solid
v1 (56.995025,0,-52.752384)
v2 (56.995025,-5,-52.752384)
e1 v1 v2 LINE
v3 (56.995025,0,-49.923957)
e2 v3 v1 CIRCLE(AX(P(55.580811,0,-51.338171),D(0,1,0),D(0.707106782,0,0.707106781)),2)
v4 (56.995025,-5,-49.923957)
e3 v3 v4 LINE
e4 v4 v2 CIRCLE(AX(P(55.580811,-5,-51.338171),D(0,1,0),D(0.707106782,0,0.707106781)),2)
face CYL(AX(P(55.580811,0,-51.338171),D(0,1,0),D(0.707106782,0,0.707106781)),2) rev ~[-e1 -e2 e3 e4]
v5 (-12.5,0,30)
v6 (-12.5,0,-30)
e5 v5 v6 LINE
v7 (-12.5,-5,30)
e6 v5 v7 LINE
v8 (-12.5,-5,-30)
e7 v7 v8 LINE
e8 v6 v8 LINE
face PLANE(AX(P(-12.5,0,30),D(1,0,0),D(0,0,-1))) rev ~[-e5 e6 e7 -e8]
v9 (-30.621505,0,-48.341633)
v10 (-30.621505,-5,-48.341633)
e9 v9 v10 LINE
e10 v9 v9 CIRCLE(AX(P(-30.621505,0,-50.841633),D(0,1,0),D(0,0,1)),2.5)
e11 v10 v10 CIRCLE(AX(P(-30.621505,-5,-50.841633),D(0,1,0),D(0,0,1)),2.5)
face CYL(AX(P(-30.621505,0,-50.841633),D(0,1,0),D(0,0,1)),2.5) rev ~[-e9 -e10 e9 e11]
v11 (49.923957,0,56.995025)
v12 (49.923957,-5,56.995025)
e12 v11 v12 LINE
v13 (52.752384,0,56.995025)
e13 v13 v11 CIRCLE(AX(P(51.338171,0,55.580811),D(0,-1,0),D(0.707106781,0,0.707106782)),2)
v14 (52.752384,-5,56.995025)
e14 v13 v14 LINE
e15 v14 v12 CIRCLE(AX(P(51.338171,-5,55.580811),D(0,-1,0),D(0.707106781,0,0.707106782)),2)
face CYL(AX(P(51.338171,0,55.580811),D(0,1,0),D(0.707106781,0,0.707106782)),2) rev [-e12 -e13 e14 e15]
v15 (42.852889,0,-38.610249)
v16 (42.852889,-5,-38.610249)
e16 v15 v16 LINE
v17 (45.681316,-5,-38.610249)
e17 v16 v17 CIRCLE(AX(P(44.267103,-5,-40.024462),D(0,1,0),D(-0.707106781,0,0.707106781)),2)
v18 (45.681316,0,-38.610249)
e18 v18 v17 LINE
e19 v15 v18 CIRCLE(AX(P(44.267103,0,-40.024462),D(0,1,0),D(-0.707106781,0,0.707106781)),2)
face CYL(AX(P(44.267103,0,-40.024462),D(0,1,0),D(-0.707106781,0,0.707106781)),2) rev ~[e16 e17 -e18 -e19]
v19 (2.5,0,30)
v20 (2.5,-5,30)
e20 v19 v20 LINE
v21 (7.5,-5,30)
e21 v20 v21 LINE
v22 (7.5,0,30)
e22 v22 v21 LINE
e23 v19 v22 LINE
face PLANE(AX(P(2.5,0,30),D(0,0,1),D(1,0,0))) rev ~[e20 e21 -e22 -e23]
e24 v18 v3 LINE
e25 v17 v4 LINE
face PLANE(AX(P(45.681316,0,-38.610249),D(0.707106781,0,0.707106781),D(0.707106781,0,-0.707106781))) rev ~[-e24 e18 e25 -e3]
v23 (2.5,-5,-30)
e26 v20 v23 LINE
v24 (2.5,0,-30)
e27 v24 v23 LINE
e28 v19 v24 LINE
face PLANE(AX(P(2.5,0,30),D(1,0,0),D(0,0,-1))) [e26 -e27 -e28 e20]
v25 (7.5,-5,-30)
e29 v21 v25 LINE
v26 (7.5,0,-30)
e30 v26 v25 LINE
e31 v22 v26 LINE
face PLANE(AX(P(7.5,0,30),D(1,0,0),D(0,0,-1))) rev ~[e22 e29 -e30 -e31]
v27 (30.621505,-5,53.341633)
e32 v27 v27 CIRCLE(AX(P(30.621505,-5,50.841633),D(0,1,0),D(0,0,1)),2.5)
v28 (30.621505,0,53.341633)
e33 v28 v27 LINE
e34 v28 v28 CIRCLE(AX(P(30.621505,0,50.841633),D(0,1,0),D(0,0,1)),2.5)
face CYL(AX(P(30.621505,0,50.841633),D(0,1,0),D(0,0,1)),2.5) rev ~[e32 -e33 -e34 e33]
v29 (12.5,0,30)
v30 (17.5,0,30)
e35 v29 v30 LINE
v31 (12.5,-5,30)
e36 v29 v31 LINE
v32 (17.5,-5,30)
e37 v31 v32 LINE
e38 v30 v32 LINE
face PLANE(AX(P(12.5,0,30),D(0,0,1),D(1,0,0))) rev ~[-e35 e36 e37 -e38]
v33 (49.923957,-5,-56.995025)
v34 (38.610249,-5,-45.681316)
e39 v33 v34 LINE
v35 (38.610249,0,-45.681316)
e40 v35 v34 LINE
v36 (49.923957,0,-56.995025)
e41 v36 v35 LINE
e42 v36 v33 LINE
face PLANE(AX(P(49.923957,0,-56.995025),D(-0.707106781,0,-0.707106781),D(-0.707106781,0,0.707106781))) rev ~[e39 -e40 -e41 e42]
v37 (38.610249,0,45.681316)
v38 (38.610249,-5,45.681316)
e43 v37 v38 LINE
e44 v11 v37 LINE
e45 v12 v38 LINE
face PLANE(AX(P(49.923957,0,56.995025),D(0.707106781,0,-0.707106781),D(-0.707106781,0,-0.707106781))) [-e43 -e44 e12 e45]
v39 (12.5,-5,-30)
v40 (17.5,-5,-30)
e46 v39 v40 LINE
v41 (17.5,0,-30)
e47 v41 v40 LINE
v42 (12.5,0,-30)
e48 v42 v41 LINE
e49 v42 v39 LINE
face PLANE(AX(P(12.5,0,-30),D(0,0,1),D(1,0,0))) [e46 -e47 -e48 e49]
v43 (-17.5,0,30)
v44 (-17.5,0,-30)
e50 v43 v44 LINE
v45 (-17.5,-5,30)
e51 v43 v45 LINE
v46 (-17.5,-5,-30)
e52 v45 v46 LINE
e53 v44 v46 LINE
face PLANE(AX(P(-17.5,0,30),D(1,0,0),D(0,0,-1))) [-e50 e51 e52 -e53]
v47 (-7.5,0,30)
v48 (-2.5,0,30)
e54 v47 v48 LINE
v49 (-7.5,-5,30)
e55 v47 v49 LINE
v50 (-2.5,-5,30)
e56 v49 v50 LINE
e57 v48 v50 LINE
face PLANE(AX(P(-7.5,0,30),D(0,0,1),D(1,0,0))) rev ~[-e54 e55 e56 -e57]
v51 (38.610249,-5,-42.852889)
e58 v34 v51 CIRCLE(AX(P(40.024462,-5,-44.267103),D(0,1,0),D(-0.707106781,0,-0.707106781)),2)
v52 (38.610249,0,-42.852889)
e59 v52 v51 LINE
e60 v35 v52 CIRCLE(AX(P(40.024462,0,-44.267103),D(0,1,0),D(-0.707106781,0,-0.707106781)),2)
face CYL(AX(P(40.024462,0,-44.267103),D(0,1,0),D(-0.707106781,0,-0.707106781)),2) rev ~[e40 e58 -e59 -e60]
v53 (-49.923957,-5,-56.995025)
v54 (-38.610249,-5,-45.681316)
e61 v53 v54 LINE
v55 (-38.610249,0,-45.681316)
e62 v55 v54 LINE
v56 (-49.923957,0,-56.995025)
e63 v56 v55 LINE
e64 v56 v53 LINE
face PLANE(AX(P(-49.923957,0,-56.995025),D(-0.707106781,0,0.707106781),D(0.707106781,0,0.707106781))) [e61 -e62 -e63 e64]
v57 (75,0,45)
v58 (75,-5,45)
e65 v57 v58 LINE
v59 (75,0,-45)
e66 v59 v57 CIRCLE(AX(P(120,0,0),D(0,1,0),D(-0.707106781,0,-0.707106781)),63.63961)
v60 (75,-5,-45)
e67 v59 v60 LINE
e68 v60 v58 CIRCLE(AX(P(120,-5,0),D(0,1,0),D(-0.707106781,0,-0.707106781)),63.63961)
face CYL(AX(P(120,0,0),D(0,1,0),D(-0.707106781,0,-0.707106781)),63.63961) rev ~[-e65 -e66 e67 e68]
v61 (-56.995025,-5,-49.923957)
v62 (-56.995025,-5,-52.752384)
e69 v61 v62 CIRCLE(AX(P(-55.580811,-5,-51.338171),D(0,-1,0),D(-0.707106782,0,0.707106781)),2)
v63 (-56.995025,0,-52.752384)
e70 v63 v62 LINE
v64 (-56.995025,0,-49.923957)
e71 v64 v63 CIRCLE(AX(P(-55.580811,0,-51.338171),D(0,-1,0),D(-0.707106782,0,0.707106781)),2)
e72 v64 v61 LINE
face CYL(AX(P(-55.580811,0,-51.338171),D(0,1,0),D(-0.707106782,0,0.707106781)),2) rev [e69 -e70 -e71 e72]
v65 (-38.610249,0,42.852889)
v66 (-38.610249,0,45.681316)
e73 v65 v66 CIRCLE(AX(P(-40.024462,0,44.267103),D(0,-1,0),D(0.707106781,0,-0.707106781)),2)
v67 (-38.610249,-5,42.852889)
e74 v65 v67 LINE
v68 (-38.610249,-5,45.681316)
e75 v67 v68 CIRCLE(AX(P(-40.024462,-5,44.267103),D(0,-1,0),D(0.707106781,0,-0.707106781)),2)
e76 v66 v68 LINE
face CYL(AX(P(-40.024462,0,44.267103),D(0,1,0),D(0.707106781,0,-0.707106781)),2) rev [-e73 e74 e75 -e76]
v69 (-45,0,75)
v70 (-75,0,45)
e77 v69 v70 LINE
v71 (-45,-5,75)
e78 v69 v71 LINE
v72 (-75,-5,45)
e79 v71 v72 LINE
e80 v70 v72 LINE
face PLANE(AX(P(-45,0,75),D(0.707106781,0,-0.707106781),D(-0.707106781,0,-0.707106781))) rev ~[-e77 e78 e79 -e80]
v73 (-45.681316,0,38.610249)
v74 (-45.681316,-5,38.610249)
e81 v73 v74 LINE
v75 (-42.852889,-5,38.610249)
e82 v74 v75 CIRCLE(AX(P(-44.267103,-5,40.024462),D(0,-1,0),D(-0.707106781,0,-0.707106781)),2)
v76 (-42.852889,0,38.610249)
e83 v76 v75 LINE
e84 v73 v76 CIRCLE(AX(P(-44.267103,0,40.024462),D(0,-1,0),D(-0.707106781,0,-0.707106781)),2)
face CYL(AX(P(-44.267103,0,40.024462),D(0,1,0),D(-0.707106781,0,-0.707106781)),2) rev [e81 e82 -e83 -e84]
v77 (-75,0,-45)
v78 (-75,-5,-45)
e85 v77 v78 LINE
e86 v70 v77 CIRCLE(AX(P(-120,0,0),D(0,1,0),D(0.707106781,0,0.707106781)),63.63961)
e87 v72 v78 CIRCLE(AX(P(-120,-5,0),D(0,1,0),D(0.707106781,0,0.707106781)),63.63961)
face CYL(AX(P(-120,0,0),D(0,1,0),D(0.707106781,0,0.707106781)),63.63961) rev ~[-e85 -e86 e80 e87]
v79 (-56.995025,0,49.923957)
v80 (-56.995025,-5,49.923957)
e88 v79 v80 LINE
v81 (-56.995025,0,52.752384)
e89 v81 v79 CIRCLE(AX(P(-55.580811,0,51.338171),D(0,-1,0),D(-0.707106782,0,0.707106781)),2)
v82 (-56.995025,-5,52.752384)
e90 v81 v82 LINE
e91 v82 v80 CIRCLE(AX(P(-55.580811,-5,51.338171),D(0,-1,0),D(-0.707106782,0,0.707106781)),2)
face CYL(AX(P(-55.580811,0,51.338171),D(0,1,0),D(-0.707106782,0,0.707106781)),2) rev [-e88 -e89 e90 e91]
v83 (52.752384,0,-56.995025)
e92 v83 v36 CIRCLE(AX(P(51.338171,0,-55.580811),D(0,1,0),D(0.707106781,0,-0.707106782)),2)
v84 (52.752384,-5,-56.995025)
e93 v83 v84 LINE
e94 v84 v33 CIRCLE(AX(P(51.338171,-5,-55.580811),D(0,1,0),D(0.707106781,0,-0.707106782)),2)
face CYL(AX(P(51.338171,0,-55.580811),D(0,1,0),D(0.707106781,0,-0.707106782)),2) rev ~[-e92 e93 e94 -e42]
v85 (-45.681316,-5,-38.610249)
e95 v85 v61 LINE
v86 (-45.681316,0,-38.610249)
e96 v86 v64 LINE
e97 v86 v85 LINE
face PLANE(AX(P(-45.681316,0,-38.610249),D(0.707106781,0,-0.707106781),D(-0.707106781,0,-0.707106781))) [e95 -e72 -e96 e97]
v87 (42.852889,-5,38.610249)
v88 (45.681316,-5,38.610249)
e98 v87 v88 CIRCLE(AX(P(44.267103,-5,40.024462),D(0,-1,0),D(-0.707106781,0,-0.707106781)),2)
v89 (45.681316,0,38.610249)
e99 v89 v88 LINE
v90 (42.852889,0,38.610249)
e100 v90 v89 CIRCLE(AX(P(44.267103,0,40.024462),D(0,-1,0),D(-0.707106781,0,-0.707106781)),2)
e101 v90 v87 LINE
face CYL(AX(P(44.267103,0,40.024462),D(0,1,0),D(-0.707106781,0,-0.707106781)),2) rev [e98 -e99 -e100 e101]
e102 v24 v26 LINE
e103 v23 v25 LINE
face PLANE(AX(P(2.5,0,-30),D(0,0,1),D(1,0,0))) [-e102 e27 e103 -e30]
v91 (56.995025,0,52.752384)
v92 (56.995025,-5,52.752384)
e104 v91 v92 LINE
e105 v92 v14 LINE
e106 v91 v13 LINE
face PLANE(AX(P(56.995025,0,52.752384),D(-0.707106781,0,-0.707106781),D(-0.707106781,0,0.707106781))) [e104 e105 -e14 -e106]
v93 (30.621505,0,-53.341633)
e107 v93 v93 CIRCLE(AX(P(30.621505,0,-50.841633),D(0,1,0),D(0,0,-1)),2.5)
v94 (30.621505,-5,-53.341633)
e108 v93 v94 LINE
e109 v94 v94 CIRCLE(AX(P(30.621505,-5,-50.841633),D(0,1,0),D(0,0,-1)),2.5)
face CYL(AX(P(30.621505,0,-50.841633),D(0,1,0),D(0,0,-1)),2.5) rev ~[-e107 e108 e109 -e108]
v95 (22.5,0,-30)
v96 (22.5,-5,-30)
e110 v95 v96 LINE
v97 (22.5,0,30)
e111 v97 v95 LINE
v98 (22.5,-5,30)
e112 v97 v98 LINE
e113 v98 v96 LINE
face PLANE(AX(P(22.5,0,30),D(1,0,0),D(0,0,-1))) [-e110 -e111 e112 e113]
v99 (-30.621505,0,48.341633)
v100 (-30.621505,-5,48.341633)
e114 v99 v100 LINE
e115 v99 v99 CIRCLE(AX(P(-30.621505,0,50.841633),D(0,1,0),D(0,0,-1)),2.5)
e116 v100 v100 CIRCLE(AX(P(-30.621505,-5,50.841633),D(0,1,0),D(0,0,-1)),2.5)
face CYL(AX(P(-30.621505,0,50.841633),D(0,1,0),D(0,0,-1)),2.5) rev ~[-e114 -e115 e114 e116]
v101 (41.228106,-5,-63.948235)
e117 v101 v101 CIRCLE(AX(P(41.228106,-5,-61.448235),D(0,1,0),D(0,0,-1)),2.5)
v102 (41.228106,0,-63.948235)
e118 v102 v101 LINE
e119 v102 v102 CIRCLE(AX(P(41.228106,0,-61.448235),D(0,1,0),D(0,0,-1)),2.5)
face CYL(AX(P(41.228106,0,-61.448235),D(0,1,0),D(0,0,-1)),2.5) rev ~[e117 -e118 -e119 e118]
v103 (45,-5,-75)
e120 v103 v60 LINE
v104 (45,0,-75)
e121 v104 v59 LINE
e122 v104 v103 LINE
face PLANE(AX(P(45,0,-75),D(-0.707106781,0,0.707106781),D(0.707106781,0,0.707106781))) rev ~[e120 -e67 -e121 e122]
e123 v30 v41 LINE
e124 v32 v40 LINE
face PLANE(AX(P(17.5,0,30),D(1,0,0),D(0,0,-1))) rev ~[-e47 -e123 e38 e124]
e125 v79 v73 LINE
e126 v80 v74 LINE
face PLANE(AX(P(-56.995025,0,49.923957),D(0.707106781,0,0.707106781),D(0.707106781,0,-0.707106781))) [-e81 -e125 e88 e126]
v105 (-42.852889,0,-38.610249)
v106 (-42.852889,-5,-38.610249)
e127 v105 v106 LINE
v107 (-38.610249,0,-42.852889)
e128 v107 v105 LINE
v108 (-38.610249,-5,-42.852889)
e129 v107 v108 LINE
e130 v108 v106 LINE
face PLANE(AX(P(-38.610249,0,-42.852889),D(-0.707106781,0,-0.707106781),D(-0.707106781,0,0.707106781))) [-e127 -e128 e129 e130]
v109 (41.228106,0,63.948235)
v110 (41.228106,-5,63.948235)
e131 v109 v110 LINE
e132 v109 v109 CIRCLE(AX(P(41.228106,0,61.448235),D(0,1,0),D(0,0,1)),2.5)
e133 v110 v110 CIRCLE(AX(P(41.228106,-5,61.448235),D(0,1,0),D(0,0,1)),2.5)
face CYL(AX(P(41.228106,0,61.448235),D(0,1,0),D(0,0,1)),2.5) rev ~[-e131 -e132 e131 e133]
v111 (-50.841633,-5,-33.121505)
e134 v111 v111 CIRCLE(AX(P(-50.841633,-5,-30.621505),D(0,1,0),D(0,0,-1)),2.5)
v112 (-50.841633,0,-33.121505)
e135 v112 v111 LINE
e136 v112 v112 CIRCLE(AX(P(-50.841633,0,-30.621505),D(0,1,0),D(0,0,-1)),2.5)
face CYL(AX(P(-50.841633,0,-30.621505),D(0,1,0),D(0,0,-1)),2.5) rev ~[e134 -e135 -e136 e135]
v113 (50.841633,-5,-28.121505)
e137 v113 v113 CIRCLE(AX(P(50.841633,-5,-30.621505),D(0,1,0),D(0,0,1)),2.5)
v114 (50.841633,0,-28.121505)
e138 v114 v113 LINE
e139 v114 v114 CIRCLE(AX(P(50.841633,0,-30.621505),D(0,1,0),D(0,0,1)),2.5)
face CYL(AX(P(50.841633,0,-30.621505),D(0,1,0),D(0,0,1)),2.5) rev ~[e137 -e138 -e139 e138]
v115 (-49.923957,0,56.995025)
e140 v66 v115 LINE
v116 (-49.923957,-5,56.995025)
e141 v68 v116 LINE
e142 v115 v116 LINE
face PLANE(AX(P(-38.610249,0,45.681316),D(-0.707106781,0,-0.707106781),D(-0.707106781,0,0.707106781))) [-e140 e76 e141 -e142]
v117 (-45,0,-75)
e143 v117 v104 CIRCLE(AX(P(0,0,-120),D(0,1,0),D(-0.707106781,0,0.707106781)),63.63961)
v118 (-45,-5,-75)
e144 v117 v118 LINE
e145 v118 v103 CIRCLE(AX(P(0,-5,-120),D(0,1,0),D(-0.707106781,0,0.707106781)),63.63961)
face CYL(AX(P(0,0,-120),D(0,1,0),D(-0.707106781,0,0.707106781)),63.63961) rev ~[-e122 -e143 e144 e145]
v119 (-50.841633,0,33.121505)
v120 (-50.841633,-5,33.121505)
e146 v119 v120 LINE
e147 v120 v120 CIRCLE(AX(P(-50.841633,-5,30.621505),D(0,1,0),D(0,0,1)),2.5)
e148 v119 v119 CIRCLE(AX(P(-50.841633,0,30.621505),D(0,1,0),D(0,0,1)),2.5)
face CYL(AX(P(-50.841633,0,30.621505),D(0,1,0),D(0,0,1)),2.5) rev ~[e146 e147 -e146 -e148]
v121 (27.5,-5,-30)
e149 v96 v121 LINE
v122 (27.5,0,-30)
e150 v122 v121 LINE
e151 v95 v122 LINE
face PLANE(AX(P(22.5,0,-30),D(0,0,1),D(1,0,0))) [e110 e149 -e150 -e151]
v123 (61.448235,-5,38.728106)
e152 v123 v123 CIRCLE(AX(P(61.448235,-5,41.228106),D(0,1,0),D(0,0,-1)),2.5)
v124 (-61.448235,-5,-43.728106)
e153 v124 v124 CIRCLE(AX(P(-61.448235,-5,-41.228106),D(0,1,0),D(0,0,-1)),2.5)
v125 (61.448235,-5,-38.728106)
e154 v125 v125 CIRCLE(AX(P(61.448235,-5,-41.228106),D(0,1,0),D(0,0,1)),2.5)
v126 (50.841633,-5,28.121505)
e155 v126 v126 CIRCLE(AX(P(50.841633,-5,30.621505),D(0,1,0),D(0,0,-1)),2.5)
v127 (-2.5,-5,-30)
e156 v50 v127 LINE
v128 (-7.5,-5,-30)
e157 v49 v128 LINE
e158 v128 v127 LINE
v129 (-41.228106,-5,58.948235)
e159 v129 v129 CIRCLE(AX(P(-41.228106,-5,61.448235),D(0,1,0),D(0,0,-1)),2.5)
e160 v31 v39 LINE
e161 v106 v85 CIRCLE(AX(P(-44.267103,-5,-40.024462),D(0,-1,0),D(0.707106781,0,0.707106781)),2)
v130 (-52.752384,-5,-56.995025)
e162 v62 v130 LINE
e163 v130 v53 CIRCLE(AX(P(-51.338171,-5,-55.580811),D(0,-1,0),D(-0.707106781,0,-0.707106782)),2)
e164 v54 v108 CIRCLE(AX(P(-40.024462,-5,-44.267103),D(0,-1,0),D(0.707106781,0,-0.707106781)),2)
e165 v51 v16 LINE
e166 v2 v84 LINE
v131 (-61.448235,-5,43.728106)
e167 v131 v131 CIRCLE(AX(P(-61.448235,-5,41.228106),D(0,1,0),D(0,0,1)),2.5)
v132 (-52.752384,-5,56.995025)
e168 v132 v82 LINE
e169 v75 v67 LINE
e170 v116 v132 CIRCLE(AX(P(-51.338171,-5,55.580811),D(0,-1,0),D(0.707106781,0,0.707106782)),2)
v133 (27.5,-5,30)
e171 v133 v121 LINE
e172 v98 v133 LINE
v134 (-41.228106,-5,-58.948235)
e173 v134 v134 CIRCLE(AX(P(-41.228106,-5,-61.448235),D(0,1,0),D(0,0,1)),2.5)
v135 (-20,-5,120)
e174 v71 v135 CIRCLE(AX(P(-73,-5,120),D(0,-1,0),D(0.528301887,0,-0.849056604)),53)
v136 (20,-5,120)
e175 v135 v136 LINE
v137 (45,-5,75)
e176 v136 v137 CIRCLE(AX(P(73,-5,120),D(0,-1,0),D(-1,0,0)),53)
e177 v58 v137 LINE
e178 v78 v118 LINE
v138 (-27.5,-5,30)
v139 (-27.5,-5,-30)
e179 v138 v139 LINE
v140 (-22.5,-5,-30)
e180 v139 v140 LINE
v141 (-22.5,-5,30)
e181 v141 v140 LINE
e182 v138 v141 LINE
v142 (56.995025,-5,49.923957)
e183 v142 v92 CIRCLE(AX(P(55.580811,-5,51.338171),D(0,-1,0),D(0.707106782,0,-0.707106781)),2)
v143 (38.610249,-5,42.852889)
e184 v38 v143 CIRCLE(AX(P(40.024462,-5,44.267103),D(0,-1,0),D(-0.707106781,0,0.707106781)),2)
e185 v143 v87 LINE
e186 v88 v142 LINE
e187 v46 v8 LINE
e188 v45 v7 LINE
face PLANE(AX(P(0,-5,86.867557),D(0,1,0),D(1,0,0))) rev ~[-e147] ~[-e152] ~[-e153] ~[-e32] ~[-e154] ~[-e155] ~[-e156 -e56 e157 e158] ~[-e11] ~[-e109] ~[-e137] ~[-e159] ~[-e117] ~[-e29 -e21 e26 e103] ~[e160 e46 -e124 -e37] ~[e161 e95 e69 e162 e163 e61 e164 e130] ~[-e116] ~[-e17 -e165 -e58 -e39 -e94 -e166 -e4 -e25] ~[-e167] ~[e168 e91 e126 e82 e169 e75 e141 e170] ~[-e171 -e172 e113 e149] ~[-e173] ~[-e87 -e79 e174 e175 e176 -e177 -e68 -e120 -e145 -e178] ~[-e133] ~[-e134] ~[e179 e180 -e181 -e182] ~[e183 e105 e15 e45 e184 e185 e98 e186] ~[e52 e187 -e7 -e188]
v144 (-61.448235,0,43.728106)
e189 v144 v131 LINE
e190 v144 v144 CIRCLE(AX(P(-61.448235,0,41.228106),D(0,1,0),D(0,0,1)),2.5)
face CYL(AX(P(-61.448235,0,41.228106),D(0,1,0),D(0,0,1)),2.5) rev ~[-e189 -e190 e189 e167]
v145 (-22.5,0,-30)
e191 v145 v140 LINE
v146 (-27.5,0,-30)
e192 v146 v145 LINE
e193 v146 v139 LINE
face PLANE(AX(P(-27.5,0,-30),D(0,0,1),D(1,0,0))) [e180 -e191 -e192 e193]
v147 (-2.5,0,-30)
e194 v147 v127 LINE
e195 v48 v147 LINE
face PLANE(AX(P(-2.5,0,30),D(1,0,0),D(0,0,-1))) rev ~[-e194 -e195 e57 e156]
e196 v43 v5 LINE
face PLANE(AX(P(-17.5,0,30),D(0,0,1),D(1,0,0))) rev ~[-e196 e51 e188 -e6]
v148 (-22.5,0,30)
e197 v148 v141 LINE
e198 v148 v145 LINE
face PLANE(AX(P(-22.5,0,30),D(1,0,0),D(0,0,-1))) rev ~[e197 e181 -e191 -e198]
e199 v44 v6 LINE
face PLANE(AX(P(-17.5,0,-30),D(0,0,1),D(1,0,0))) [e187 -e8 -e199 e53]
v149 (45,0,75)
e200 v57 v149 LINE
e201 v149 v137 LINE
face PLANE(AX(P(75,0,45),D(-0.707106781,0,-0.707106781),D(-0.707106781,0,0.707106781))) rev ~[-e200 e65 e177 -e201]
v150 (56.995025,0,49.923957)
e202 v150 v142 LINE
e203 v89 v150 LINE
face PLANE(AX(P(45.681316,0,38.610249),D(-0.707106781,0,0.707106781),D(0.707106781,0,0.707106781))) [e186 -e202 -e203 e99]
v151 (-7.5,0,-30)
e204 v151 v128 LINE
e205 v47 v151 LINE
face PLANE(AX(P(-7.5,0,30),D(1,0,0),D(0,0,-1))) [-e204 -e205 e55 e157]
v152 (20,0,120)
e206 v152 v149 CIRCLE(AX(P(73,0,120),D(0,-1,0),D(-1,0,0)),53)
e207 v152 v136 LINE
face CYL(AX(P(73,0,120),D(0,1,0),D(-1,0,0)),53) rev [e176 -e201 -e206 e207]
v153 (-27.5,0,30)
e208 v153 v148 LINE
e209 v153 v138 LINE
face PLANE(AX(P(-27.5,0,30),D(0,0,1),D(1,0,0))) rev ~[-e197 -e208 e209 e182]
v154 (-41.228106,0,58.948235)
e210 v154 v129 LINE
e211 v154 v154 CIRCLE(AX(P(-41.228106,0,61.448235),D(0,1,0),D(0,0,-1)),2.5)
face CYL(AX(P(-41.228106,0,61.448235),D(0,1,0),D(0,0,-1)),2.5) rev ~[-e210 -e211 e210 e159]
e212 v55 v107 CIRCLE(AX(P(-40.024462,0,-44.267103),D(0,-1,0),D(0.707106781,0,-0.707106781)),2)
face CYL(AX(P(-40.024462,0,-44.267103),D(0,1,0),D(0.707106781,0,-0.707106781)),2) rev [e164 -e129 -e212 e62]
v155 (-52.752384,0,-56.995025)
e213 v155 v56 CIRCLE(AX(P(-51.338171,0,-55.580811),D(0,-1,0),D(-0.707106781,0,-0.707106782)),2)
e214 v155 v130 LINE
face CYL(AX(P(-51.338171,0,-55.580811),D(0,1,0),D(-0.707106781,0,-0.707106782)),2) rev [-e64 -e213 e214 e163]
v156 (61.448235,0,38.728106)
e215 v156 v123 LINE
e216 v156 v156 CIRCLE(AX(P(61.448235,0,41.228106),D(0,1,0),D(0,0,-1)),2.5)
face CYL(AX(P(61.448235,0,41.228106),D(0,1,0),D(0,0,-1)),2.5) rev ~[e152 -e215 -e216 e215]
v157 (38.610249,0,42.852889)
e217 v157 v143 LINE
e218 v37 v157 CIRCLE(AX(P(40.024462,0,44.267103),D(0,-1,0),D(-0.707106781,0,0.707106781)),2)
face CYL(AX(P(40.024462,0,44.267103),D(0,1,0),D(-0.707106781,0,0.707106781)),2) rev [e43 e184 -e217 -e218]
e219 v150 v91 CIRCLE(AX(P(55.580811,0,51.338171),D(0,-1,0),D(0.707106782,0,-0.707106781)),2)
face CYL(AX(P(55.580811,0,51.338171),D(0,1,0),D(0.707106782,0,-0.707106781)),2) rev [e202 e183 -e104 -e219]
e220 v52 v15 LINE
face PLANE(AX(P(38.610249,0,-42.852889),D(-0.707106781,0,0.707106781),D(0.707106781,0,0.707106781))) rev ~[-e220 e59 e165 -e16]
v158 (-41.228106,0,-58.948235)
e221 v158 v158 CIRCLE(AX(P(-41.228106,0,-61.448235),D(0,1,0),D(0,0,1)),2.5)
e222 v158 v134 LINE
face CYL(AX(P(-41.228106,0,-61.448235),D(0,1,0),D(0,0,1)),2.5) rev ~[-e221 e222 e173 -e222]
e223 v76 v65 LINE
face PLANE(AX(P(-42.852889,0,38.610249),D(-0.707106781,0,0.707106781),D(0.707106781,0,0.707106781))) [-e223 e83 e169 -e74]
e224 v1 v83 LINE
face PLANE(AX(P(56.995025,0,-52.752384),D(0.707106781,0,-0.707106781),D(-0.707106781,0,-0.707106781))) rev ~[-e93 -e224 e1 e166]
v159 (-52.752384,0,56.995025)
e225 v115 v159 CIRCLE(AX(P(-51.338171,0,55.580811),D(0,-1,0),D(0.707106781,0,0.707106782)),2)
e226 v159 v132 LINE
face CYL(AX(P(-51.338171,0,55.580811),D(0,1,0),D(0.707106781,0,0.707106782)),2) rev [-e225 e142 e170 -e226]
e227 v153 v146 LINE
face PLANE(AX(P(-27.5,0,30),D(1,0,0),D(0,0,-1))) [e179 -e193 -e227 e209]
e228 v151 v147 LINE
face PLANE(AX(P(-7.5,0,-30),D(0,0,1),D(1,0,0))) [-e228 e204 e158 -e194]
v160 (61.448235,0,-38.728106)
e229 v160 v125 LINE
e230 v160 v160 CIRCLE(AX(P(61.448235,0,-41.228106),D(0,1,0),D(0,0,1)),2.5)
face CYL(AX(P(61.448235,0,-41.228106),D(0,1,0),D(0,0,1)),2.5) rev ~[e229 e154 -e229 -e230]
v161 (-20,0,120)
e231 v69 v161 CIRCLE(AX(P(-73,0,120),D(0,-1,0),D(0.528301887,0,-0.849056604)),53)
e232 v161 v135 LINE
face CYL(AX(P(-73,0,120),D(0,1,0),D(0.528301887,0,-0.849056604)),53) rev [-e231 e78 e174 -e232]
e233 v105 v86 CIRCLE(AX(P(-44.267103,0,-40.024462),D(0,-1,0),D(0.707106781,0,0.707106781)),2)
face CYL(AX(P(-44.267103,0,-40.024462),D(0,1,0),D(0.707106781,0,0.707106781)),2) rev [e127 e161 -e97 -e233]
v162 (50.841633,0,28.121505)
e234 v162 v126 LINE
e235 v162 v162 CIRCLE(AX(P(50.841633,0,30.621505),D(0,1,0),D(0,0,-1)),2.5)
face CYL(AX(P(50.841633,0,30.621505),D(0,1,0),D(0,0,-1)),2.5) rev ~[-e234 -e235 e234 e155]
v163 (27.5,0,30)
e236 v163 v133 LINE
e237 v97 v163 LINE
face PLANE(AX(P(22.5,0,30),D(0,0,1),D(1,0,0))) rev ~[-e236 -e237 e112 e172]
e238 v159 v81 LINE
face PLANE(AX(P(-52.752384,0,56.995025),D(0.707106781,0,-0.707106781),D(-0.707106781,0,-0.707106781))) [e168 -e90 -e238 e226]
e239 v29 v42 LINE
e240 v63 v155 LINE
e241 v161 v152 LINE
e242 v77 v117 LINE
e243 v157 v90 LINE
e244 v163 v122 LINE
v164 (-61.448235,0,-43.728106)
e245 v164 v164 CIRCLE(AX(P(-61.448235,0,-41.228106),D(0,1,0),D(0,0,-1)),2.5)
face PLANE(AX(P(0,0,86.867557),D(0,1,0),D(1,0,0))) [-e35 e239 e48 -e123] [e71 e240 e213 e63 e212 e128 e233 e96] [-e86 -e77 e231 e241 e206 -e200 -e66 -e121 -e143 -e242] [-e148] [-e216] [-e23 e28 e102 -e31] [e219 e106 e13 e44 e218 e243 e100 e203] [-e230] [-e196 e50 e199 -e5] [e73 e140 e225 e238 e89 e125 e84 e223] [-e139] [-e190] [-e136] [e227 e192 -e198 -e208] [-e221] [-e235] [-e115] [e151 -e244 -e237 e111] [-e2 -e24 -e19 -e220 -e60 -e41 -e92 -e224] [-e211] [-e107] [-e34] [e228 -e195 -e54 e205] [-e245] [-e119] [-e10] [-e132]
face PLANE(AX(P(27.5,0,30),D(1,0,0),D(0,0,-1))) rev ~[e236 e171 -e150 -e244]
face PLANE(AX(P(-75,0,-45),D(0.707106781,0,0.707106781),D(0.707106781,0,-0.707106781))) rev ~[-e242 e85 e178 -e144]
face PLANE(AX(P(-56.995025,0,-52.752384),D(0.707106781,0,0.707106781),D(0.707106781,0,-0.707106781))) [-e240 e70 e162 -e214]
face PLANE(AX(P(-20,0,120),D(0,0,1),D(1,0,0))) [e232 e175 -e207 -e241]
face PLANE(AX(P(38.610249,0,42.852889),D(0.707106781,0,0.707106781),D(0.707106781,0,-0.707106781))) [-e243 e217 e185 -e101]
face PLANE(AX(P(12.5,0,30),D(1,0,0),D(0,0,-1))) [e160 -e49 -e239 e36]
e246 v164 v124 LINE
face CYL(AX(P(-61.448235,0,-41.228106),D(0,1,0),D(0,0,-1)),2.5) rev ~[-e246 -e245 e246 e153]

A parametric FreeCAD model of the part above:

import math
import FreeCAD as App
import Part
import Sketcher

doc = App.newDocument("Part")
params = doc.addObject("Spreadsheet::Sheet", "Params")
for row, (alias, value) in enumerate([
    ("sketch1_diameter", "5 mm"),
    ("sketch1_radius", "2 mm"),
    ("sketch1_width", "5 mm"),
    ("sketch1_height", "60 mm"),
    ("sketch1_length", "16 mm"),
    ("pad1_length", "5 mm"),
    ("sketch2_radius", "53 mm"),
    ("sketch2_width", "40 mm"),
    ("pad2_length", "5 mm"),
], start=1):
    params.set(f"A{row}", alias)
    params.set(f"B{row}", "=" + value)
    params.setAlias(f"B{row}", alias)

body = doc.addObject("PartDesign::Body", "Body")

# Sketch on XZ plane
sketch1 = body.newObject("Sketcher::SketchObject", "Sketch")
sketch1.AttachmentSupport = (doc.getObject("XZ_Plane"), [""])
sketch1.MapMode = "FlatFace"
sketch1.addGeometry([
    Part.LineSegment(App.Vector(75, -45, 0), App.Vector(45, -75, 0)),  # 0
    Part.ArcOfCircle(Part.Circle(App.Vector(0, -120, 0), App.Vector(0, 0, 1), 63.6), math.radians(45), math.radians(135)),  # 1
    Part.LineSegment(App.Vector(-45, -75, 0), App.Vector(-75, -45, 0)),  # 2
    Part.ArcOfCircle(Part.Circle(App.Vector(-120, 0, 0), App.Vector(0, 0, 1), 63.6), math.radians(-45), math.radians(45)),  # 3
    Part.LineSegment(App.Vector(-75, 45, 0), App.Vector(-45, 75, 0)),  # 4
    Part.ArcOfCircle(Part.Circle(App.Vector(0, 120, 0), App.Vector(0, 0, 1), 63.6), math.radians(-135), math.radians(-45)),  # 5
    Part.LineSegment(App.Vector(45, 75, 0), App.Vector(75, 45, 0)),  # 6
    Part.ArcOfCircle(Part.Circle(App.Vector(120, 0, 0), App.Vector(0, 0, 1), 63.6), math.radians(135), math.radians(225)),  # 7
    Part.Circle(App.Vector(41.2, 61.4, 0), App.Vector(0, 0, 1), 2.5),  # 8
    Part.Circle(App.Vector(61.4, 41.2, 0), App.Vector(0, 0, 1), 2.5),  # 9
    Part.LineSegment(App.Vector(45.7, 38.6, 0), App.Vector(57, 49.9, 0)),  # 10
    Part.ArcOfCircle(Part.Circle(App.Vector(55.6, 51.3, 0), App.Vector(0, 0, 1), 2), math.radians(-45), math.radians(45)),  # 11
    Part.LineSegment(App.Vector(57, 52.8, 0), App.Vector(52.8, 57, 0)),  # 12
    Part.ArcOfCircle(Part.Circle(App.Vector(51.3, 55.6, 0), App.Vector(0, 0, 1), 2), math.radians(45), math.radians(135)),  # 13
    Part.LineSegment(App.Vector(49.9, 57, 0), App.Vector(38.6, 45.7, 0)),  # 14
    Part.ArcOfCircle(Part.Circle(App.Vector(40, 44.3, 0), App.Vector(0, 0, 1), 2), math.radians(135), math.radians(225)),  # 15
    Part.LineSegment(App.Vector(38.6, 42.9, 0), App.Vector(42.9, 38.6, 0)),  # 16
    Part.ArcOfCircle(Part.Circle(App.Vector(44.3, 40, 0), App.Vector(0, 0, 1), 2), math.radians(-135), math.radians(-45)),  # 17
    Part.Circle(App.Vector(30.6, 50.8, 0), App.Vector(0, 0, 1), 2.5),  # 18
    Part.Circle(App.Vector(50.8, 30.6, 0), App.Vector(0, 0, 1), 2.5),  # 19
    Part.LineSegment(App.Vector(22.5, 30, 0), App.Vector(22.5, -30, 0)),  # 20
    Part.LineSegment(App.Vector(22.5, -30, 0), App.Vector(27.5, -30, 0)),  # 21
    Part.LineSegment(App.Vector(27.5, -30, 0), App.Vector(27.5, 30, 0)),  # 22
    Part.LineSegment(App.Vector(27.5, 30, 0), App.Vector(22.5, 30, 0)),  # 23
    Part.LineSegment(App.Vector(12.5, 30, 0), App.Vector(12.5, -30, 0)),  # 24
    Part.LineSegment(App.Vector(12.5, -30, 0), App.Vector(17.5, -30, 0)),  # 25
    Part.LineSegment(App.Vector(17.5, -30, 0), App.Vector(17.5, 30, 0)),  # 26
    Part.LineSegment(App.Vector(17.5, 30, 0), App.Vector(12.5, 30, 0)),  # 27
    Part.LineSegment(App.Vector(2.5, 30, 0), App.Vector(2.5, -30, 0)),  # 28
    Part.LineSegment(App.Vector(2.5, -30, 0), App.Vector(7.5, -30, 0)),  # 29
    Part.LineSegment(App.Vector(7.5, -30, 0), App.Vector(7.5, 30, 0)),  # 30
    Part.LineSegment(App.Vector(7.5, 30, 0), App.Vector(2.5, 30, 0)),  # 31
    Part.Circle(App.Vector(-30.6, 50.8, 0), App.Vector(0, 0, 1), 2.5),  # 32
    Part.Circle(App.Vector(-41.2, 61.4, 0), App.Vector(0, 0, 1), 2.5),  # 33
    Part.LineSegment(App.Vector(-38.6, 45.7, 0), App.Vector(-49.9, 57, 0)),  # 34
    Part.ArcOfCircle(Part.Circle(App.Vector(-51.3, 55.6, 0), App.Vector(0, 0, 1), 2), math.radians(45), math.radians(135)),  # 35
    Part.LineSegment(App.Vector(-52.8, 57, 0), App.Vector(-57, 52.8, 0)),  # 36
    Part.ArcOfCircle(Part.Circle(App.Vector(-55.6, 51.3, 0), App.Vector(0, 0, 1), 2), math.radians(135), math.radians(225)),  # 37
    Part.LineSegment(App.Vector(-57, 49.9, 0), App.Vector(-45.7, 38.6, 0)),  # 38
    Part.ArcOfCircle(Part.Circle(App.Vector(-44.3, 40, 0), App.Vector(0, 0, 1), 2), math.radians(-135), math.radians(-45)),  # 39
    Part.LineSegment(App.Vector(-42.9, 38.6, 0), App.Vector(-38.6, 42.9, 0)),  # 40
    Part.ArcOfCircle(Part.Circle(App.Vector(-40, 44.3, 0), App.Vector(0, 0, 1), 2), math.radians(-45), math.radians(45)),  # 41
    Part.Circle(App.Vector(-61.4, 41.2, 0), App.Vector(0, 0, 1), 2.5),  # 42
    Part.LineSegment(App.Vector(-7.5, 30, 0), App.Vector(-7.5, -30, 0)),  # 43
    Part.LineSegment(App.Vector(-7.5, -30, 0), App.Vector(-2.5, -30, 0)),  # 44
    Part.LineSegment(App.Vector(-2.5, -30, 0), App.Vector(-2.5, 30, 0)),  # 45
    Part.LineSegment(App.Vector(-2.5, 30, 0), App.Vector(-7.5, 30, 0)),  # 46
    Part.LineSegment(App.Vector(-17.5, 30, 0), App.Vector(-17.5, -30, 0)),  # 47
    Part.LineSegment(App.Vector(-17.5, -30, 0), App.Vector(-12.5, -30, 0)),  # 48
    Part.LineSegment(App.Vector(-12.5, -30, 0), App.Vector(-12.5, 30, 0)),  # 49
    Part.LineSegment(App.Vector(-12.5, 30, 0), App.Vector(-17.5, 30, 0)),  # 50
    Part.LineSegment(App.Vector(-27.5, 30, 0), App.Vector(-27.5, -30, 0)),  # 51
    Part.LineSegment(App.Vector(-27.5, -30, 0), App.Vector(-22.5, -30, 0)),  # 52
    Part.LineSegment(App.Vector(-22.5, -30, 0), App.Vector(-22.5, 30, 0)),  # 53
    Part.LineSegment(App.Vector(-22.5, 30, 0), App.Vector(-27.5, 30, 0)),  # 54
    Part.Circle(App.Vector(-50.8, 30.6, 0), App.Vector(0, 0, 1), 2.5),  # 55
    Part.Circle(App.Vector(50.8, -30.6, 0), App.Vector(0, 0, 1), 2.5),  # 56
    Part.Circle(App.Vector(61.4, -41.2, 0), App.Vector(0, 0, 1), 2.5),  # 57
    Part.ArcOfCircle(Part.Circle(App.Vector(40, -44.3, 0), App.Vector(0, 0, 1), 2), math.radians(135), math.radians(225)),  # 58
    Part.LineSegment(App.Vector(38.6, -45.7, 0), App.Vector(49.9, -57, 0)),  # 59
    Part.ArcOfCircle(Part.Circle(App.Vector(51.3, -55.6, 0), App.Vector(0, 0, 1), 2), math.radians(-135), math.radians(-45)),  # 60
    Part.LineSegment(App.Vector(52.8, -57, 0), App.Vector(57, -52.8, 0)),  # 61
    Part.ArcOfCircle(Part.Circle(App.Vector(55.6, -51.3, 0), App.Vector(0, 0, 1), 2), math.radians(-45), math.radians(45)),  # 62
    Part.LineSegment(App.Vector(57, -49.9, 0), App.Vector(45.7, -38.6, 0)),  # 63
    Part.ArcOfCircle(Part.Circle(App.Vector(44.3, -40, 0), App.Vector(0, 0, 1), 2), math.radians(45), math.radians(135)),  # 64
    Part.LineSegment(App.Vector(42.9, -38.6, 0), App.Vector(38.6, -42.9, 0)),  # 65
    Part.Circle(App.Vector(41.2, -61.4, 0), App.Vector(0, 0, 1), 2.5),  # 66
    Part.Circle(App.Vector(30.6, -50.8, 0), App.Vector(0, 0, 1), 2.5),  # 67
    Part.Circle(App.Vector(-50.8, -30.6, 0), App.Vector(0, 0, 1), 2.5),  # 68
    Part.Circle(App.Vector(-30.6, -50.8, 0), App.Vector(0, 0, 1), 2.5),  # 69
    Part.LineSegment(App.Vector(-45.7, -38.6, 0), App.Vector(-57, -49.9, 0)),  # 70
    Part.ArcOfCircle(Part.Circle(App.Vector(-55.6, -51.3, 0), App.Vector(0, 0, 1), 2), math.radians(135), math.radians(225)),  # 71
    Part.LineSegment(App.Vector(-57, -52.8, 0), App.Vector(-52.8, -57, 0)),  # 72
    Part.ArcOfCircle(Part.Circle(App.Vector(-51.3, -55.6, 0), App.Vector(0, 0, 1), 2), math.radians(-135), math.radians(-45)),  # 73
    Part.LineSegment(App.Vector(-49.9, -57, 0), App.Vector(-38.6, -45.7, 0)),  # 74
    Part.ArcOfCircle(Part.Circle(App.Vector(-40, -44.3, 0), App.Vector(0, 0, 1), 2), math.radians(-45), math.radians(45)),  # 75
    Part.LineSegment(App.Vector(-38.6, -42.9, 0), App.Vector(-42.9, -38.6, 0)),  # 76
    Part.ArcOfCircle(Part.Circle(App.Vector(-44.3, -40, 0), App.Vector(0, 0, 1), 2), math.radians(45), math.radians(135)),  # 77
    Part.Circle(App.Vector(-61.4, -41.2, 0), App.Vector(0, 0, 1), 2.5),  # 78
    Part.Circle(App.Vector(-41.2, -61.4, 0), App.Vector(0, 0, 1), 2.5),  # 79
], False)
sketch1.addConstraint([
    Sketcher.Constraint("Coincident", 0, 2, 1, 1),
    Sketcher.Constraint("Coincident", 1, 2, 2, 1),
    Sketcher.Constraint("Coincident", 2, 2, 3, 1),
    Sketcher.Constraint("Coincident", 3, 2, 4, 1),
    Sketcher.Constraint("Coincident", 4, 2, 5, 1),
    Sketcher.Constraint("Coincident", 5, 2, 6, 1),
    Sketcher.Constraint("Coincident", 6, 2, 7, 1),
    Sketcher.Constraint("Coincident", 7, 2, 0, 1),
    Sketcher.Constraint("Tangent", 10, 2, 11, 1),
    Sketcher.Constraint("Tangent", 11, 2, 12, 1),
    Sketcher.Constraint("Tangent", 12, 2, 13, 1),
    Sketcher.Constraint("Tangent", 13, 2, 14, 1),
    Sketcher.Constraint("Tangent", 14, 2, 15, 1),
    Sketcher.Constraint("Tangent", 15, 2, 16, 1),
    Sketcher.Constraint("Tangent", 16, 2, 17, 1),
    Sketcher.Constraint("Tangent", 17, 2, 10, 1),
    Sketcher.Constraint("Coincident", 20, 2, 21, 1),
    Sketcher.Constraint("Coincident", 21, 2, 22, 1),
    Sketcher.Constraint("Coincident", 22, 2, 23, 1),
    Sketcher.Constraint("Coincident", 23, 2, 20, 1),
    Sketcher.Constraint("Coincident", 24, 2, 25, 1),
    Sketcher.Constraint("Coincident", 25, 2, 26, 1),
    Sketcher.Constraint("Coincident", 26, 2, 27, 1),
    Sketcher.Constraint("Coincident", 27, 2, 24, 1),
    Sketcher.Constraint("Coincident", 28, 2, 29, 1),
    Sketcher.Constraint("Coincident", 29, 2, 30, 1),
    Sketcher.Constraint("Coincident", 30, 2, 31, 1),
    Sketcher.Constraint("Coincident", 31, 2, 28, 1),
    Sketcher.Constraint("Tangent", 34, 2, 35, 1),
    Sketcher.Constraint("Tangent", 35, 2, 36, 1),
    Sketcher.Constraint("Tangent", 36, 2, 37, 1),
    Sketcher.Constraint("Tangent", 37, 2, 38, 1),
    Sketcher.Constraint("Tangent", 38, 2, 39, 1),
    Sketcher.Constraint("Tangent", 39, 2, 40, 1),
    Sketcher.Constraint("Tangent", 40, 2, 41, 1),
    Sketcher.Constraint("Tangent", 41, 2, 34, 1),
    Sketcher.Constraint("Coincident", 43, 2, 44, 1),
    Sketcher.Constraint("Coincident", 44, 2, 45, 1),
    Sketcher.Constraint("Coincident", 45, 2, 46, 1),
    Sketcher.Constraint("Coincident", 46, 2, 43, 1),
    Sketcher.Constraint("Coincident", 47, 2, 48, 1),
    Sketcher.Constraint("Coincident", 48, 2, 49, 1),
    Sketcher.Constraint("Coincident", 49, 2, 50, 1),
    Sketcher.Constraint("Coincident", 50, 2, 47, 1),
    Sketcher.Constraint("Coincident", 51, 2, 52, 1),
    Sketcher.Constraint("Coincident", 52, 2, 53, 1),
    Sketcher.Constraint("Coincident", 53, 2, 54, 1),
    Sketcher.Constraint("Coincident", 54, 2, 51, 1),
    Sketcher.Constraint("Tangent", 58, 2, 59, 1),
    Sketcher.Constraint("Tangent", 59, 2, 60, 1),
    Sketcher.Constraint("Tangent", 60, 2, 61, 1),
    Sketcher.Constraint("Tangent", 61, 2, 62, 1),
    Sketcher.Constraint("Tangent", 62, 2, 63, 1),
    Sketcher.Constraint("Tangent", 63, 2, 64, 1),
    Sketcher.Constraint("Tangent", 64, 2, 65, 1),
    Sketcher.Constraint("Tangent", 65, 2, 58, 1),
    Sketcher.Constraint("Tangent", 70, 2, 71, 1),
    Sketcher.Constraint("Tangent", 71, 2, 72, 1),
    Sketcher.Constraint("Tangent", 72, 2, 73, 1),
    Sketcher.Constraint("Tangent", 73, 2, 74, 1),
    Sketcher.Constraint("Tangent", 74, 2, 75, 1),
    Sketcher.Constraint("Tangent", 75, 2, 76, 1),
    Sketcher.Constraint("Tangent", 76, 2, 77, 1),
    Sketcher.Constraint("Tangent", 77, 2, 70, 1),
    Sketcher.Constraint("Vertical", 20),
    Sketcher.Constraint("Horizontal", 21),
    Sketcher.Constraint("Vertical", 22),
    Sketcher.Constraint("Horizontal", 23),
    Sketcher.Constraint("Vertical", 24),
    Sketcher.Constraint("Horizontal", 25),
    Sketcher.Constraint("Vertical", 26),
    Sketcher.Constraint("Horizontal", 27),
    Sketcher.Constraint("Vertical", 28),
    Sketcher.Constraint("Horizontal", 29),
    Sketcher.Constraint("Vertical", 30),
    Sketcher.Constraint("Horizontal", 31),
    Sketcher.Constraint("Vertical", 43),
    Sketcher.Constraint("Horizontal", 44),
    Sketcher.Constraint("Vertical", 45),
    Sketcher.Constraint("Horizontal", 46),
    Sketcher.Constraint("Vertical", 47),
    Sketcher.Constraint("Horizontal", 48),
    Sketcher.Constraint("Vertical", 49),
    Sketcher.Constraint("Horizontal", 50),
    Sketcher.Constraint("Vertical", 51),
    Sketcher.Constraint("Horizontal", 52),
    Sketcher.Constraint("Vertical", 53),
    Sketcher.Constraint("Horizontal", 54),
    Sketcher.Constraint("Equal", 1, 3),
    Sketcher.Constraint("Equal", 3, 5),
    Sketcher.Constraint("Equal", 5, 7),
    Sketcher.Constraint("Equal", 8, 9),
    Sketcher.Constraint("Equal", 11, 13),
    Sketcher.Constraint("Equal", 13, 15),
    Sketcher.Constraint("Equal", 15, 17),
    Sketcher.Constraint("Equal", 9, 18),
    Sketcher.Constraint("Equal", 18, 19),
    Sketcher.Constraint("Equal", 19, 32),
    Sketcher.Constraint("Equal", 32, 33),
    Sketcher.Constraint("Equal", 17, 35),
    Sketcher.Constraint("Equal", 35, 37),
    Sketcher.Constraint("Equal", 37, 39),
    Sketcher.Constraint("Equal", 39, 41),
    Sketcher.Constraint("Equal", 33, 42),
    Sketcher.Constraint("Equal", 42, 55),
    Sketcher.Constraint("Equal", 55, 56),
    Sketcher.Constraint("Equal", 56, 57),
    Sketcher.Constraint("Equal", 41, 58),
    Sketcher.Constraint("Equal", 58, 60),
    Sketcher.Constraint("Equal", 60, 62),
    Sketcher.Constraint("Equal", 62, 64),
    Sketcher.Constraint("Equal", 57, 66),
    Sketcher.Constraint("Equal", 66, 67),
    Sketcher.Constraint("Equal", 67, 68),
    Sketcher.Constraint("Equal", 68, 69),
    Sketcher.Constraint("Equal", 64, 71),
    Sketcher.Constraint("Equal", 71, 73),
    Sketcher.Constraint("Equal", 73, 75),
    Sketcher.Constraint("Equal", 75, 77),
    Sketcher.Constraint("Equal", 69, 78),
    Sketcher.Constraint("Equal", 78, 79),
    Sketcher.Constraint("Symmetric", 1, 3, 5, 3, -1, 1),
    Sketcher.Constraint("Symmetric", 3, 3, 7, 3, -1, 1),
    Sketcher.Constraint("Symmetric", 55, 3, 56, 3, -1, 1),
    Sketcher.Constraint("Symmetric", 42, 3, 57, 3, -1, 1),
    Sketcher.Constraint("Symmetric", 41, 3, 58, 3, -1, 1),
    Sketcher.Constraint("Symmetric", 35, 3, 60, 3, -1, 1),
    Sketcher.Constraint("Symmetric", 37, 3, 62, 3, -1, 1),
    Sketcher.Constraint("Symmetric", 39, 3, 64, 3, -1, 1),
    Sketcher.Constraint("Symmetric", 33, 3, 66, 3, -1, 1),
    Sketcher.Constraint("Symmetric", 32, 3, 67, 3, -1, 1),
    Sketcher.Constraint("Symmetric", 19, 3, 68, 3, -1, 1),
    Sketcher.Constraint("Symmetric", 18, 3, 69, 3, -1, 1),
    Sketcher.Constraint("Symmetric", 11, 3, 71, 3, -1, 1),
    Sketcher.Constraint("Symmetric", 13, 3, 73, 3, -1, 1),
    Sketcher.Constraint("Symmetric", 15, 3, 75, 3, -1, 1),
    Sketcher.Constraint("Symmetric", 17, 3, 77, 3, -1, 1),
    Sketcher.Constraint("Symmetric", 9, 3, 78, 3, -1, 1),
    Sketcher.Constraint("Symmetric", 8, 3, 79, 3, -1, 1),
    Sketcher.Constraint("Symmetric", 30, 2, 43, 2, -1, 1),
    Sketcher.Constraint("Symmetric", 28, 2, 45, 2, -1, 1),
    Sketcher.Constraint("Symmetric", 26, 2, 47, 2, -1, 1),
    Sketcher.Constraint("Symmetric", 24, 2, 49, 2, -1, 1),
    Sketcher.Constraint("Symmetric", 22, 2, 51, 2, -1, 1),
    Sketcher.Constraint("Symmetric", 20, 2, 53, 2, -1, 1),
    Sketcher.Constraint("Symmetric", 18, 3, 32, 3, -2),
    Sketcher.Constraint("Symmetric", 8, 3, 33, 3, -2),
    Sketcher.Constraint("Symmetric", 13, 3, 35, 3, -2),
    Sketcher.Constraint("Symmetric", 11, 3, 37, 3, -2),
    Sketcher.Constraint("Symmetric", 17, 3, 39, 3, -2),
    Sketcher.Constraint("Symmetric", 15, 3, 41, 3, -2),
    Sketcher.Constraint("Symmetric", 9, 3, 42, 3, -2),
    Sketcher.Constraint("Symmetric", 19, 3, 55, 3, -2),
    Sketcher.Constraint("Symmetric", 0, 2, 1, 2, -2),
    Sketcher.Constraint("Symmetric", 3, 2, 6, 2, -2),
    Sketcher.Constraint("Perpendicular", 0, 2),
    Sketcher.Constraint("Perpendicular", 2, 4),
    Sketcher.Constraint("Perpendicular", 4, 6),
    Sketcher.Constraint("Perpendicular", 6, 10),
    Sketcher.Constraint("Perpendicular", 10, 12),
    Sketcher.Constraint("Perpendicular", 12, 14),
    Sketcher.Constraint("Perpendicular", 14, 16),
    Sketcher.Constraint("Parallel", 16, 34),
    Sketcher.Constraint("Horizontal", 21, 2, 24, 2),
    Sketcher.Constraint("Horizontal", 23, 2, 26, 2),
    Sketcher.Constraint("Horizontal", 25, 2, 28, 2),
    Sketcher.Constraint("Horizontal", 27, 2, 30, 2),
    Sketcher.Constraint("Horizontal", 29, 2, 43, 2),
    Sketcher.Constraint("Vertical", 2, 2, 3, 2),
    Sketcher.Constraint("Equal", 23, 25),
    Sketcher.Constraint("Equal", 27, 29),
    Sketcher.Constraint("Diameter", 8, 5.0),
    Sketcher.Constraint("Radius", 11, 2.0),
    Sketcher.Constraint("DistanceX", 21, 1, 21, 2, 5.0),
    Sketcher.Constraint("DistanceY", 20, 2, 20, 1, 60.0),
    Sketcher.Constraint("Distance", 10, 16.0),
    Sketcher.Constraint("Distance", 12, 6.0),
    Sketcher.Constraint("DistanceY", 1, 3, -1, 1, 120.0),
    Sketcher.Constraint("DistanceX", 3, 3, -1, 1, 120.0),
    Sketcher.Constraint("DistanceX", -1, 1, 0, 2, 45.0),
    Sketcher.Constraint("DistanceY", 0, 2, -1, 1, 75.0),
    Sketcher.Constraint("DistanceX", -1, 1, 20, 2, 22.5),
    Sketcher.Constraint("DistanceX", -1, 1, 24, 2, 12.5),
    Sketcher.Constraint("DistanceX", -1, 1, 28, 2, 2.5),
    Sketcher.Constraint("DistanceX", -1, 1, 11, 3, 55.580811),
    Sketcher.Constraint("DistanceY", -1, 1, 11, 3, 51.338171),
    Sketcher.Constraint("DistanceX", -1, 1, 8, 3, 41.228106),
    Sketcher.Constraint("DistanceY", -1, 1, 8, 3, 61.448235),
    Sketcher.Constraint("DistanceX", -1, 1, 9, 3, 61.448235),
    Sketcher.Constraint("DistanceY", -1, 1, 9, 3, 41.228106),
    Sketcher.Constraint("DistanceX", -1, 1, 18, 3, 30.621505),
    Sketcher.Constraint("DistanceY", -1, 1, 18, 3, 50.841633),
    Sketcher.Constraint("DistanceX", -1, 1, 19, 3, 50.841633),
    Sketcher.Constraint("DistanceY", -1, 1, 19, 3, 30.621505),
])
sketch1.setExpression("Constraints[171]", "Params.sketch1_diameter")
sketch1.setExpression("Constraints[172]", "Params.sketch1_radius")
sketch1.setExpression("Constraints[173]", "Params.sketch1_width")
sketch1.setExpression("Constraints[174]", "Params.sketch1_height")
sketch1.setExpression("Constraints[175]", "Params.sketch1_length")
pad1 = body.newObject("PartDesign::Pad", "Pad")
pad1.Profile = sketch1
pad1.setExpression("Length", "Params.pad1_length")

# Sketch on XZ plane
sketch2 = body.newObject("Sketcher::SketchObject", "Sketch001")
sketch2.AttachmentSupport = (doc.getObject("XZ_Plane"), [""])
sketch2.MapMode = "FlatFace"
sketch2.addGeometry([
    Part.LineSegment(App.Vector(-20, 120, 0), App.Vector(20, 120, 0)),
    Part.ArcOfCircle(Part.Circle(App.Vector(73, 120, 0), App.Vector(0, 0, 1), 53), math.radians(-180), math.radians(-122)),
    Part.ArcOfCircle(Part.Circle(App.Vector(0, 120, 0), App.Vector(0, 0, 1), 64), math.radians(-135), math.radians(-45)),
    Part.ArcOfCircle(Part.Circle(App.Vector(-73, 120, 0), App.Vector(0, 0, 1), 53), math.radians(-58), math.radians(0)),
], False)
sketch2.addConstraint([
    Sketcher.Constraint("Coincident", 0, 2, 1, 1),
    Sketcher.Constraint("Coincident", 1, 2, 2, 2),
    Sketcher.Constraint("Coincident", 2, 1, 3, 1),
    Sketcher.Constraint("Coincident", 3, 2, 0, 1),
    Sketcher.Constraint("Horizontal", 0),
    Sketcher.Constraint("Equal", 1, 3),
    Sketcher.Constraint("Symmetric", 1, 3, 3, 3, -2),
    Sketcher.Constraint("PointOnObject", 2, 3, -2),
    Sketcher.Constraint("Horizontal", 1, 3, 2, 3),
    Sketcher.Constraint("Horizontal", 3, 3, 0, 2),
    Sketcher.Constraint("Radius", 1, 53.0),
    Sketcher.Constraint("DistanceX", 0, 1, 0, 2, 40.0),
    Sketcher.Constraint("DistanceY", -1, 1, 1, 3, 120.0),
    Sketcher.Constraint("DistanceX", -1, 1, 1, 2, 45.0),
])
sketch2.setExpression("Constraints[10]", "Params.sketch2_radius")
sketch2.setExpression("Constraints[11]", "Params.sketch2_width")
pad2 = body.newObject("PartDesign::Pad", "Pad001")
pad2.Profile = sketch2
pad2.setExpression("Length", "Params.pad2_length")

doc.recompute()
